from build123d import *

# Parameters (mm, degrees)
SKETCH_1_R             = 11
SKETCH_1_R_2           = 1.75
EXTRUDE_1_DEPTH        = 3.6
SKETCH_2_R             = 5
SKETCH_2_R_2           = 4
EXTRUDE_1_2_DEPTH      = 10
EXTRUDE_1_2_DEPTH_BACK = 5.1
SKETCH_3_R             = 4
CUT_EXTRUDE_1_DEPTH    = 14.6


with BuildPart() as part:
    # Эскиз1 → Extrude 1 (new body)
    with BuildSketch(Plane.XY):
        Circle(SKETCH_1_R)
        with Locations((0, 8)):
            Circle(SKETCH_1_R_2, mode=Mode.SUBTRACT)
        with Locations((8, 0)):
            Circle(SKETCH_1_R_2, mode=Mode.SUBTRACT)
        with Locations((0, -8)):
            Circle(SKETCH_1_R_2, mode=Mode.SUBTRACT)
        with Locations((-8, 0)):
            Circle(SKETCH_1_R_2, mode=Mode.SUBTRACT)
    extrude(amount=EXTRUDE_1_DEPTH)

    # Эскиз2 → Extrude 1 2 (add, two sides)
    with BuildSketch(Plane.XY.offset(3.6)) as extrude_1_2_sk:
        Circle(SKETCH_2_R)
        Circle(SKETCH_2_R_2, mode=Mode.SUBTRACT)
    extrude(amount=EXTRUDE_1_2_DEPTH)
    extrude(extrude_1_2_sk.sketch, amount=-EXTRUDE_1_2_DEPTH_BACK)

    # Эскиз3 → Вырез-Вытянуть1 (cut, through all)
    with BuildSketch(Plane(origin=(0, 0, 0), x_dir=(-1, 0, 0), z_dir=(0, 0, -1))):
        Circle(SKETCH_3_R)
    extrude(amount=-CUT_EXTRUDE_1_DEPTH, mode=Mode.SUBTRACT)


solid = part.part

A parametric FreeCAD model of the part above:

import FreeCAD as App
import Part
import Sketcher
Q = App.Units.Quantity

doc = App.newDocument("Part")
body = doc.addObject("PartDesign::Body", "Body")

sketch1 = body.newObject("Sketcher::SketchObject", "Sketch")
sketch1.AttachmentSupport = (doc.getObject("XY_Plane"), [""])
sketch1.MapMode = "FlatFace"
sketch1.addGeometry(Part.Circle(App.Vector(0, 0, 0), App.Vector(0, 0, 1), 11), False)
sketch1.addGeometry(Part.Circle(App.Vector(0, -8, 0), App.Vector(0, 0, 1), 1.8), False)
sketch1.addGeometry(Part.Circle(App.Vector(-8, 0, 0), App.Vector(0, 0, 1), 1.8), False)
sketch1.addGeometry(Part.Circle(App.Vector(8, 0, 0), App.Vector(0, 0, 1), 1.8), False)
sketch1.addGeometry(Part.Circle(App.Vector(0, 8, 0), App.Vector(0, 0, 1), 1.8), False)
sketch1.addConstraint(Sketcher.Constraint("Coincident", 0, 3, -1, 1))
sketch1.addConstraint(Sketcher.Constraint("Equal", 1, 2))
sketch1.addConstraint(Sketcher.Constraint("Equal", 2, 3))
sketch1.addConstraint(Sketcher.Constraint("Equal", 3, 4))
sketch1.addConstraint(Sketcher.Constraint("Symmetric", 2, 3, 3, 3, -1, 1))
sketch1.addConstraint(Sketcher.Constraint("Symmetric", 1, 3, 4, 3, -1, 1))
sketch1.addConstraint(Sketcher.Constraint("PointOnObject", 1, 3, -2))
sketch1.addConstraint(Sketcher.Constraint("PointOnObject", 2, 3, -1))
sketch1.addConstraint(Sketcher.Constraint("Diameter", 0, Q("22 mm")))
sketch1.addConstraint(Sketcher.Constraint("Diameter", 1, Q("3.5 mm")))
sketch1.addConstraint(Sketcher.Constraint("DistanceY", 1, 3, -1, 1, Q("8 mm")))
sketch1.addConstraint(Sketcher.Constraint("DistanceX", 2, 3, -1, 1, Q("8 mm")))
pad1 = body.newObject("PartDesign::Pad", "Pad")
pad1.Profile = sketch1
pad1.Length = 3.6

sketch2 = body.newObject("Sketcher::SketchObject", "Sketch001")
sketch2.AttachmentSupport = (doc.getObject("XY_Plane"), [""])
sketch2.MapMode = "FlatFace"
sketch2.AttachmentOffset = App.Placement(App.Vector(0, 0, 3.6), App.Rotation())
sketch2.addGeometry(Part.Circle(App.Vector(0, 0, 0), App.Vector(0, 0, 1), 5), False)
sketch2.addGeometry(Part.Circle(App.Vector(0, 0, 0), App.Vector(0, 0, 1), 4), False)
sketch2.addConstraint(Sketcher.Constraint("Coincident", 0, 3, -1, 1))
sketch2.addConstraint(Sketcher.Constraint("Coincident", 1, 3, -1, 1))
sketch2.addConstraint(Sketcher.Constraint("Diameter", 0, Q("10 mm")))
sketch2.addConstraint(Sketcher.Constraint("Diameter", 1, Q("8 mm")))
pad2 = body.newObject("PartDesign::Pad", "Pad001")
pad2.Profile = sketch2
pad2.Type = "TwoLengths"
pad2.Length = 10
pad2.Length2 = 5.1

sketch3 = body.newObject("Sketcher::SketchObject", "Sketch002")
sketch3.AttachmentSupport = (doc.getObject("XY_Plane"), [""])
sketch3.MapMode = "FlatFace"
sketch3.addGeometry(Part.Circle(App.Vector(0, 0, 0), App.Vector(0, 0, 1), 4), False)
sketch3.addConstraint(Sketcher.Constraint("Coincident", 0, 3, -1, 1))
sketch3.addConstraint(Sketcher.Constraint("Diameter", 0, Q("8 mm")))
pocket1 = body.newObject("PartDesign::Pocket", "Pocket")
pocket1.Profile = sketch3
pocket1.Type = "ThroughAll"
pocket1.Reversed = True

doc.recompute()
